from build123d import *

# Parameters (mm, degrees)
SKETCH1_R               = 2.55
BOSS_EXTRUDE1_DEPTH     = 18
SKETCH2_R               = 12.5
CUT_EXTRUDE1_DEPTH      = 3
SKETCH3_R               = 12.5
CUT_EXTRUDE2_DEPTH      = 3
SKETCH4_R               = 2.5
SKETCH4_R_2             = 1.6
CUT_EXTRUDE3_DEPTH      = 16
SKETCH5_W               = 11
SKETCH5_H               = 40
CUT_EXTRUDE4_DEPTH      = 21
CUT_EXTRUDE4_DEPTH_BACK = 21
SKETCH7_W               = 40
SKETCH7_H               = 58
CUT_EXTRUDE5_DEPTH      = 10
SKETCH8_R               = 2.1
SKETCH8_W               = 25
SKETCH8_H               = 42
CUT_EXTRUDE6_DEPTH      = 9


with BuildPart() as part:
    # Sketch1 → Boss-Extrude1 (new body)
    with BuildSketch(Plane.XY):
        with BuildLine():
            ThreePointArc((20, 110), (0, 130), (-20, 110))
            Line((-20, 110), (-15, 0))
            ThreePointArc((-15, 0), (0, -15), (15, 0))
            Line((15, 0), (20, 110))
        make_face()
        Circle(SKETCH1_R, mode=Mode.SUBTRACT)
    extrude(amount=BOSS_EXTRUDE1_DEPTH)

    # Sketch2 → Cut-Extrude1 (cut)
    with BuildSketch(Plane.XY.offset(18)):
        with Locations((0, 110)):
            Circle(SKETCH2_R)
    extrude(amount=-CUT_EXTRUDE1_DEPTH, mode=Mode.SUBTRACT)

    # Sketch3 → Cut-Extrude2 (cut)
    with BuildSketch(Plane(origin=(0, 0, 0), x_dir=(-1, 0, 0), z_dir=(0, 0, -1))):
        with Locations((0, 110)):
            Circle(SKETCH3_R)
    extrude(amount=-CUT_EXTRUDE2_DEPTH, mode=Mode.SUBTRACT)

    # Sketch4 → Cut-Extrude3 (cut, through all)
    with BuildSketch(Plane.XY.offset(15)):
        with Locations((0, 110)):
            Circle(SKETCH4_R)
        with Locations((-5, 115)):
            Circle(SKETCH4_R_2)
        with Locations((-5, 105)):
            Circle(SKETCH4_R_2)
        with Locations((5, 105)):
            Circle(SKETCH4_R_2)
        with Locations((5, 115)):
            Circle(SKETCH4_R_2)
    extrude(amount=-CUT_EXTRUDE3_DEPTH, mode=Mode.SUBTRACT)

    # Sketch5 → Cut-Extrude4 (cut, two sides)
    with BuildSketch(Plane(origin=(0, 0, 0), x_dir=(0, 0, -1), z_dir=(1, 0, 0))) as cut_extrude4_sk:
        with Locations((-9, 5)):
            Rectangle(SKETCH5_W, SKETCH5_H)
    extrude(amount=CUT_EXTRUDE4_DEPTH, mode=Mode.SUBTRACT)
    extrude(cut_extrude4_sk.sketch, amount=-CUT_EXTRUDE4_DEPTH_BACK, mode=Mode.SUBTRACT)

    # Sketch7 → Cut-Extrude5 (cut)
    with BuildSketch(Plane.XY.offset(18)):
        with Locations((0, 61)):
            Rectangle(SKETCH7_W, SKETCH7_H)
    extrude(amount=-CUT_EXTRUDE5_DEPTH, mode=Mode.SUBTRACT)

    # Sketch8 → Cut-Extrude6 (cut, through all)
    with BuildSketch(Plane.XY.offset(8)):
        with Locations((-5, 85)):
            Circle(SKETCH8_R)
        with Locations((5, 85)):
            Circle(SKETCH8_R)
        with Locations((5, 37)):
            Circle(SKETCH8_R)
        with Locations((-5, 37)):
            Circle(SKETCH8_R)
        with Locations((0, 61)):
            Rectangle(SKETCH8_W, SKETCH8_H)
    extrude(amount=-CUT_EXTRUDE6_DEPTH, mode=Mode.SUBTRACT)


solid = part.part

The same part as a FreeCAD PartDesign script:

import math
import FreeCAD as App
import Part
import Sketcher
from FreeCAD import Vector
Q = App.Units.Quantity


def add_polygon(sketch, points):
    """Adds a closed chain of lines whose ends are joined by coincident constraints."""
    first, n = sketch.GeometryCount, len(points)
    for a, b in zip(points, points[1:] + points[:1]):
        sketch.addGeometry(Part.LineSegment(App.Vector(*a, 0), App.Vector(*b, 0)), False)
    for i in range(n):
        sketch.addConstraint(Sketcher.Constraint("Coincident", first + i, 2, first + (i + 1) % n, 1))

doc = App.newDocument("Part")
params = doc.addObject("Spreadsheet::Sheet", "Params")
for row, (alias, value) in enumerate([
    ("sketch1_radius", "20 mm"),
    ("sketch1_radius2", "15 mm"),
    ("sketch1_diameter", "5.1 mm"),
    ("pad1_length", "18 mm"),
    ("sketch2_diameter", "25 mm"),
    ("pocket1_length", "3 mm"),
    ("sketch3_diameter", "25 mm"),
    ("pocket2_length", "3 mm"),
    ("sketch4_diameter", "5 mm"),
    ("sketch4_diameter2", "3.2 mm"),
    ("sketch5_width", "40 mm"),
    ("sketch5_height", "11 mm"),
    ("sketch6_width", "40 mm"),
    ("sketch6_height", "58 mm"),
    ("pocket5_length", "10 mm"),
    ("sketch7_diameter", "4.2 mm"),
    ("sketch7_width", "25 mm"),
    ("sketch7_height", "42 mm"),
], start=1):
    params.set(f"A{row}", alias)
    params.set(f"B{row}", "=" + value)
    params.setAlias(f"B{row}", alias)

body = doc.addObject("PartDesign::Body", "Body")

# Sketch on XY plane
sketch1 = body.newObject("Sketcher::SketchObject", "Sketch")
sketch1.AttachmentSupport = (doc.getObject("XY_Plane"), [""])
sketch1.MapMode = "FlatFace"
sketch1.addGeometry(Part.ArcOfCircle(Part.Circle(Vector(0, 110, 0), Vector(0, 0, 1), 20), math.radians(0), math.radians(180)), False)
sketch1.addGeometry(Part.LineSegment(Vector(-20, 110, 0), Vector(-15, 0, 0)), False)
sketch1.addGeometry(Part.ArcOfCircle(Part.Circle(Vector(0, 0, 0), Vector(0, 0, 1), 15), math.radians(180), math.radians(360)), False)
sketch1.addGeometry(Part.LineSegment(Vector(15, 0, 0), Vector(20, 110, 0)), False)
sketch1.addGeometry(Part.Circle(Vector(0, 0, 0), Vector(0, 0, 1), 2.5), False)
sketch1.addConstraint(Sketcher.Constraint("Coincident", 0, 2, 1, 1))
sketch1.addConstraint(Sketcher.Constraint("Coincident", 1, 2, 2, 1))
sketch1.addConstraint(Sketcher.Constraint("Coincident", 2, 2, 3, 1))
sketch1.addConstraint(Sketcher.Constraint("Coincident", 3, 2, 0, 1))
sketch1.addConstraint(Sketcher.Constraint("Coincident", 2, 3, -1, 1))
sketch1.addConstraint(Sketcher.Constraint("Coincident", 4, 3, -1, 1))
sketch1.addConstraint(Sketcher.Constraint("Symmetric", 0, 2, 3, 2, -2))
sketch1.addConstraint(Sketcher.Constraint("PointOnObject", 1, 2, -1))
sketch1.addConstraint(Sketcher.Constraint("PointOnObject", 2, 2, -1))
sketch1.addConstraint(Sketcher.Constraint("Radius", 0, Q("20 mm")))
sketch1.addConstraint(Sketcher.Constraint("Radius", 2, Q("15 mm")))
sketch1.addConstraint(Sketcher.Constraint("Diameter", 4, Q("5.1 mm")))
sketch1.addConstraint(Sketcher.Constraint("DistanceY", -1, 1, 0, 3, Q("110 mm")))
sketch1.addConstraint(Sketcher.Constraint("DistanceY", -1, 1, 0, 2, Q("110 mm")))
sketch1.setExpression("Constraints[9]", "Params.sketch1_radius")
sketch1.setExpression("Constraints[10]", "Params.sketch1_radius2")
sketch1.setExpression("Constraints[11]", "Params.sketch1_diameter")
pad1 = body.newObject("PartDesign::Pad", "Pad")
pad1.Profile = sketch1
pad1.setExpression("Length", "Params.pad1_length")

# Sketch on XY plane
sketch2 = body.newObject("Sketcher::SketchObject", "Sketch001")
sketch2.AttachmentSupport = (doc.getObject("XY_Plane"), [""])
sketch2.MapMode = "FlatFace"
sketch2.AttachmentOffset = App.Placement(Vector(0, 0, 18), App.Rotation())
sketch2.addGeometry(Part.Circle(Vector(0, 110, 0), Vector(0, 0, 1), 12), False)
sketch2.addConstraint(Sketcher.Constraint("PointOnObject", 0, 3, -2))
sketch2.addConstraint(Sketcher.Constraint("Diameter", 0, Q("25 mm")))
sketch2.addConstraint(Sketcher.Constraint("DistanceY", -1, 1, 0, 3, Q("110 mm")))
sketch2.setExpression("Constraints[1]", "Params.sketch2_diameter")
pocket1 = body.newObject("PartDesign::Pocket", "Pocket")
pocket1.Profile = sketch2
pocket1.setExpression("Length", "Params.pocket1_length")

# Sketch on XY plane
sketch3 = body.newObject("Sketcher::SketchObject", "Sketch002")
sketch3.AttachmentSupport = (doc.getObject("XY_Plane"), [""])
sketch3.MapMode = "FlatFace"
sketch3.addGeometry(Part.Circle(Vector(0, 110, 0), Vector(0, 0, 1), 12), False)
sketch3.addConstraint(Sketcher.Constraint("PointOnObject", 0, 3, -2))
sketch3.addConstraint(Sketcher.Constraint("Diameter", 0, Q("25 mm")))
sketch3.addConstraint(Sketcher.Constraint("DistanceY", -1, 1, 0, 3, Q("110 mm")))
sketch3.setExpression("Constraints[1]", "Params.sketch3_diameter")
pocket2 = body.newObject("PartDesign::Pocket", "Pocket001")
pocket2.Profile = sketch3
pocket2.setExpression("Length", "Params.pocket2_length")
pocket2.Reversed = True

# Sketch on XY plane
sketch4 = body.newObject("Sketcher::SketchObject", "Sketch003")
sketch4.AttachmentSupport = (doc.getObject("XY_Plane"), [""])
sketch4.MapMode = "FlatFace"
sketch4.AttachmentOffset = App.Placement(Vector(0, 0, 15), App.Rotation())
sketch4.addGeometry(Part.Circle(Vector(0, 110, 0), Vector(0, 0, 1), 2.5), False)
sketch4.addGeometry(Part.Circle(Vector(-5, 115, 0), Vector(0, 0, 1), 1.6), False)
sketch4.addGeometry(Part.Circle(Vector(-5, 105, 0), Vector(0, 0, 1), 1.6), False)
sketch4.addGeometry(Part.Circle(Vector(5, 105, 0), Vector(0, 0, 1), 1.6), False)
sketch4.addGeometry(Part.Circle(Vector(5, 115, 0), Vector(0, 0, 1), 1.6), False)
sketch4.addConstraint(Sketcher.Constraint("Equal", 1, 2))
sketch4.addConstraint(Sketcher.Constraint("Equal", 2, 3))
sketch4.addConstraint(Sketcher.Constraint("Equal", 3, 4))
sketch4.addConstraint(Sketcher.Constraint("Symmetric", 2, 3, 3, 3, -2))
sketch4.addConstraint(Sketcher.Constraint("Symmetric", 1, 3, 4, 3, -2))
sketch4.addConstraint(Sketcher.Constraint("PointOnObject", 0, 3, -2))
sketch4.addConstraint(Sketcher.Constraint("Vertical", 1, 3, 2, 3))
sketch4.addConstraint(Sketcher.Constraint("Diameter", 0, Q("5 mm")))
sketch4.addConstraint(Sketcher.Constraint("Diameter", 1, Q("3.2 mm")))
sketch4.addConstraint(Sketcher.Constraint("DistanceY", -1, 1, 0, 3, Q("110 mm")))
sketch4.addConstraint(Sketcher.Constraint("DistanceX", 1, 3, -1, 1, Q("5 mm")))
sketch4.addConstraint(Sketcher.Constraint("DistanceY", -1, 1, 1, 3, Q("115 mm")))
sketch4.addConstraint(Sketcher.Constraint("DistanceY", -1, 1, 2, 3, Q("105 mm")))
sketch4.setExpression("Constraints[7]", "Params.sketch4_diameter")
sketch4.setExpression("Constraints[8]", "Params.sketch4_diameter2")
pocket3 = body.newObject("PartDesign::Pocket", "Pocket002")
pocket3.Profile = sketch4
pocket3.Type = "ThroughAll"

# Sketch on YZ plane
sketch5 = body.newObject("Sketcher::SketchObject", "Sketch004")
sketch5.AttachmentSupport = (doc.getObject("YZ_Plane"), [""])
sketch5.MapMode = "FlatFace"
add_polygon(sketch5, [(25, 14), (-15, 14), (-15, 4), (25, 4)])  # lines 0-3
sketch5.addConstraint(Sketcher.Constraint("Horizontal", 0))
sketch5.addConstraint(Sketcher.Constraint("Vertical", 1))
sketch5.addConstraint(Sketcher.Constraint("Horizontal", 2))
sketch5.addConstraint(Sketcher.Constraint("Vertical", 3))
sketch5.addConstraint(Sketcher.Constraint("DistanceX", 0, 2, 0, 1, Q("40 mm")))
sketch5.addConstraint(Sketcher.Constraint("DistanceY", 1, 2, 1, 1, Q("11 mm")))
sketch5.addConstraint(Sketcher.Constraint("DistanceX", 0, 2, -1, 1, Q("15 mm")))
sketch5.addConstraint(Sketcher.Constraint("DistanceY", -1, 1, 0, 2, Q("14.5 mm")))
sketch5.setExpression("Constraints[8]", "Params.sketch5_width")
sketch5.setExpression("Constraints[9]", "Params.sketch5_height")
pocket4 = body.newObject("PartDesign::Pocket", "Pocket003")
pocket4.Profile = sketch5
pocket4.Type = "ThroughAll"
pocket4.Midplane = True

# Sketch on XY plane
sketch6 = body.newObject("Sketcher::SketchObject", "Sketch005")
sketch6.AttachmentSupport = (doc.getObject("XY_Plane"), [""])
sketch6.MapMode = "FlatFace"
sketch6.AttachmentOffset = App.Placement(Vector(0, 0, 18), App.Rotation())
add_polygon(sketch6, [(-20, 90), (-20, 32), (20, 32), (20, 90)])  # lines 0-3
sketch6.addConstraint(Sketcher.Constraint("Vertical", 0))
sketch6.addConstraint(Sketcher.Constraint("Horizontal", 1))
sketch6.addConstraint(Sketcher.Constraint("Vertical", 2))
sketch6.addConstraint(Sketcher.Constraint("Horizontal", 3))
sketch6.addConstraint(Sketcher.Constraint("DistanceX", 1, 1, 1, 2, Q("40 mm")))
sketch6.addConstraint(Sketcher.Constraint("DistanceY", 0, 2, 0, 1, Q("58 mm")))
sketch6.addConstraint(Sketcher.Constraint("DistanceX", 0, 2, -1, 1, Q("20 mm")))
sketch6.addConstraint(Sketcher.Constraint("DistanceY", -1, 1, 0, 2, Q("32 mm")))
sketch6.setExpression("Constraints[8]", "Params.sketch6_width")
sketch6.setExpression("Constraints[9]", "Params.sketch6_height")
pocket5 = body.newObject("PartDesign::Pocket", "Pocket004")
pocket5.Profile = sketch6
pocket5.setExpression("Length", "Params.pocket5_length")

# Sketch on XY plane
sketch7 = body.newObject("Sketcher::SketchObject", "Sketch006")
sketch7.AttachmentSupport = (doc.getObject("XY_Plane"), [""])
sketch7.MapMode = "FlatFace"
sketch7.AttachmentOffset = App.Placement(Vector(0, 0, 8), App.Rotation())
sketch7.addGeometry(Part.Circle(Vector(-5, 85, 0), Vector(0, 0, 1), 2.1), False)  # 0
sketch7.addGeometry(Part.Circle(Vector(5, 85, 0), Vector(0, 0, 1), 2.1), False)  # 1
sketch7.addGeometry(Part.Circle(Vector(5, 37, 0), Vector(0, 0, 1), 2.1), False)  # 2
sketch7.addGeometry(Part.Circle(Vector(-5, 37, 0), Vector(0, 0, 1), 2.1), False)  # 3
add_polygon(sketch7, [(-12.5, 82), (-12.5, 40), (12.5, 40), (12.5, 82)])  # lines 4-7
sketch7.addConstraint(Sketcher.Constraint("Vertical", 4))
sketch7.addConstraint(Sketcher.Constraint("Horizontal", 5))
sketch7.addConstraint(Sketcher.Constraint("Vertical", 6))
sketch7.addConstraint(Sketcher.Constraint("Horizontal", 7))
sketch7.addConstraint(Sketcher.Constraint("Equal", 0, 1))
sketch7.addConstraint(Sketcher.Constraint("Equal", 1, 2))
sketch7.addConstraint(Sketcher.Constraint("Equal", 2, 3))
sketch7.addConstraint(Sketcher.Constraint("Symmetric", 0, 3, 1, 3, -2))
sketch7.addConstraint(Sketcher.Constraint("Symmetric", 2, 3, 3, 3, -2))
sketch7.addConstraint(Sketcher.Constraint("Vertical", 1, 3, 2, 3))
sketch7.addConstraint(Sketcher.Constraint("Diameter", 0, Q("4.2 mm")))
sketch7.addConstraint(Sketcher.Constraint("DistanceX", 5, 1, 5, 2, Q("25 mm")))
sketch7.addConstraint(Sketcher.Constraint("DistanceY", 4, 2, 4, 1, Q("42 mm")))
sketch7.addConstraint(Sketcher.Constraint("DistanceX", 0, 3, -1, 1, Q("5 mm")))
sketch7.addConstraint(Sketcher.Constraint("DistanceY", -1, 1, 0, 3, Q("85 mm")))
sketch7.addConstraint(Sketcher.Constraint("DistanceY", -1, 1, 2, 3, Q("37 mm")))
sketch7.addConstraint(Sketcher.Constraint("DistanceY", -1, 1, 4, 2, Q("40 mm")))
sketch7.addConstraint(Sketcher.Constraint("DistanceX", 4, 2, -1, 1, Q("12.5 mm")))
sketch7.setExpression("Constraints[14]", "Params.sketch7_diameter")
sketch7.setExpression("Constraints[15]", "Params.sketch7_width")
sketch7.setExpression("Constraints[16]", "Params.sketch7_height")
pocket6 = body.newObject("PartDesign::Pocket", "Pocket005")
pocket6.Profile = sketch7
pocket6.Type = "ThroughAll"

doc.recompute()
